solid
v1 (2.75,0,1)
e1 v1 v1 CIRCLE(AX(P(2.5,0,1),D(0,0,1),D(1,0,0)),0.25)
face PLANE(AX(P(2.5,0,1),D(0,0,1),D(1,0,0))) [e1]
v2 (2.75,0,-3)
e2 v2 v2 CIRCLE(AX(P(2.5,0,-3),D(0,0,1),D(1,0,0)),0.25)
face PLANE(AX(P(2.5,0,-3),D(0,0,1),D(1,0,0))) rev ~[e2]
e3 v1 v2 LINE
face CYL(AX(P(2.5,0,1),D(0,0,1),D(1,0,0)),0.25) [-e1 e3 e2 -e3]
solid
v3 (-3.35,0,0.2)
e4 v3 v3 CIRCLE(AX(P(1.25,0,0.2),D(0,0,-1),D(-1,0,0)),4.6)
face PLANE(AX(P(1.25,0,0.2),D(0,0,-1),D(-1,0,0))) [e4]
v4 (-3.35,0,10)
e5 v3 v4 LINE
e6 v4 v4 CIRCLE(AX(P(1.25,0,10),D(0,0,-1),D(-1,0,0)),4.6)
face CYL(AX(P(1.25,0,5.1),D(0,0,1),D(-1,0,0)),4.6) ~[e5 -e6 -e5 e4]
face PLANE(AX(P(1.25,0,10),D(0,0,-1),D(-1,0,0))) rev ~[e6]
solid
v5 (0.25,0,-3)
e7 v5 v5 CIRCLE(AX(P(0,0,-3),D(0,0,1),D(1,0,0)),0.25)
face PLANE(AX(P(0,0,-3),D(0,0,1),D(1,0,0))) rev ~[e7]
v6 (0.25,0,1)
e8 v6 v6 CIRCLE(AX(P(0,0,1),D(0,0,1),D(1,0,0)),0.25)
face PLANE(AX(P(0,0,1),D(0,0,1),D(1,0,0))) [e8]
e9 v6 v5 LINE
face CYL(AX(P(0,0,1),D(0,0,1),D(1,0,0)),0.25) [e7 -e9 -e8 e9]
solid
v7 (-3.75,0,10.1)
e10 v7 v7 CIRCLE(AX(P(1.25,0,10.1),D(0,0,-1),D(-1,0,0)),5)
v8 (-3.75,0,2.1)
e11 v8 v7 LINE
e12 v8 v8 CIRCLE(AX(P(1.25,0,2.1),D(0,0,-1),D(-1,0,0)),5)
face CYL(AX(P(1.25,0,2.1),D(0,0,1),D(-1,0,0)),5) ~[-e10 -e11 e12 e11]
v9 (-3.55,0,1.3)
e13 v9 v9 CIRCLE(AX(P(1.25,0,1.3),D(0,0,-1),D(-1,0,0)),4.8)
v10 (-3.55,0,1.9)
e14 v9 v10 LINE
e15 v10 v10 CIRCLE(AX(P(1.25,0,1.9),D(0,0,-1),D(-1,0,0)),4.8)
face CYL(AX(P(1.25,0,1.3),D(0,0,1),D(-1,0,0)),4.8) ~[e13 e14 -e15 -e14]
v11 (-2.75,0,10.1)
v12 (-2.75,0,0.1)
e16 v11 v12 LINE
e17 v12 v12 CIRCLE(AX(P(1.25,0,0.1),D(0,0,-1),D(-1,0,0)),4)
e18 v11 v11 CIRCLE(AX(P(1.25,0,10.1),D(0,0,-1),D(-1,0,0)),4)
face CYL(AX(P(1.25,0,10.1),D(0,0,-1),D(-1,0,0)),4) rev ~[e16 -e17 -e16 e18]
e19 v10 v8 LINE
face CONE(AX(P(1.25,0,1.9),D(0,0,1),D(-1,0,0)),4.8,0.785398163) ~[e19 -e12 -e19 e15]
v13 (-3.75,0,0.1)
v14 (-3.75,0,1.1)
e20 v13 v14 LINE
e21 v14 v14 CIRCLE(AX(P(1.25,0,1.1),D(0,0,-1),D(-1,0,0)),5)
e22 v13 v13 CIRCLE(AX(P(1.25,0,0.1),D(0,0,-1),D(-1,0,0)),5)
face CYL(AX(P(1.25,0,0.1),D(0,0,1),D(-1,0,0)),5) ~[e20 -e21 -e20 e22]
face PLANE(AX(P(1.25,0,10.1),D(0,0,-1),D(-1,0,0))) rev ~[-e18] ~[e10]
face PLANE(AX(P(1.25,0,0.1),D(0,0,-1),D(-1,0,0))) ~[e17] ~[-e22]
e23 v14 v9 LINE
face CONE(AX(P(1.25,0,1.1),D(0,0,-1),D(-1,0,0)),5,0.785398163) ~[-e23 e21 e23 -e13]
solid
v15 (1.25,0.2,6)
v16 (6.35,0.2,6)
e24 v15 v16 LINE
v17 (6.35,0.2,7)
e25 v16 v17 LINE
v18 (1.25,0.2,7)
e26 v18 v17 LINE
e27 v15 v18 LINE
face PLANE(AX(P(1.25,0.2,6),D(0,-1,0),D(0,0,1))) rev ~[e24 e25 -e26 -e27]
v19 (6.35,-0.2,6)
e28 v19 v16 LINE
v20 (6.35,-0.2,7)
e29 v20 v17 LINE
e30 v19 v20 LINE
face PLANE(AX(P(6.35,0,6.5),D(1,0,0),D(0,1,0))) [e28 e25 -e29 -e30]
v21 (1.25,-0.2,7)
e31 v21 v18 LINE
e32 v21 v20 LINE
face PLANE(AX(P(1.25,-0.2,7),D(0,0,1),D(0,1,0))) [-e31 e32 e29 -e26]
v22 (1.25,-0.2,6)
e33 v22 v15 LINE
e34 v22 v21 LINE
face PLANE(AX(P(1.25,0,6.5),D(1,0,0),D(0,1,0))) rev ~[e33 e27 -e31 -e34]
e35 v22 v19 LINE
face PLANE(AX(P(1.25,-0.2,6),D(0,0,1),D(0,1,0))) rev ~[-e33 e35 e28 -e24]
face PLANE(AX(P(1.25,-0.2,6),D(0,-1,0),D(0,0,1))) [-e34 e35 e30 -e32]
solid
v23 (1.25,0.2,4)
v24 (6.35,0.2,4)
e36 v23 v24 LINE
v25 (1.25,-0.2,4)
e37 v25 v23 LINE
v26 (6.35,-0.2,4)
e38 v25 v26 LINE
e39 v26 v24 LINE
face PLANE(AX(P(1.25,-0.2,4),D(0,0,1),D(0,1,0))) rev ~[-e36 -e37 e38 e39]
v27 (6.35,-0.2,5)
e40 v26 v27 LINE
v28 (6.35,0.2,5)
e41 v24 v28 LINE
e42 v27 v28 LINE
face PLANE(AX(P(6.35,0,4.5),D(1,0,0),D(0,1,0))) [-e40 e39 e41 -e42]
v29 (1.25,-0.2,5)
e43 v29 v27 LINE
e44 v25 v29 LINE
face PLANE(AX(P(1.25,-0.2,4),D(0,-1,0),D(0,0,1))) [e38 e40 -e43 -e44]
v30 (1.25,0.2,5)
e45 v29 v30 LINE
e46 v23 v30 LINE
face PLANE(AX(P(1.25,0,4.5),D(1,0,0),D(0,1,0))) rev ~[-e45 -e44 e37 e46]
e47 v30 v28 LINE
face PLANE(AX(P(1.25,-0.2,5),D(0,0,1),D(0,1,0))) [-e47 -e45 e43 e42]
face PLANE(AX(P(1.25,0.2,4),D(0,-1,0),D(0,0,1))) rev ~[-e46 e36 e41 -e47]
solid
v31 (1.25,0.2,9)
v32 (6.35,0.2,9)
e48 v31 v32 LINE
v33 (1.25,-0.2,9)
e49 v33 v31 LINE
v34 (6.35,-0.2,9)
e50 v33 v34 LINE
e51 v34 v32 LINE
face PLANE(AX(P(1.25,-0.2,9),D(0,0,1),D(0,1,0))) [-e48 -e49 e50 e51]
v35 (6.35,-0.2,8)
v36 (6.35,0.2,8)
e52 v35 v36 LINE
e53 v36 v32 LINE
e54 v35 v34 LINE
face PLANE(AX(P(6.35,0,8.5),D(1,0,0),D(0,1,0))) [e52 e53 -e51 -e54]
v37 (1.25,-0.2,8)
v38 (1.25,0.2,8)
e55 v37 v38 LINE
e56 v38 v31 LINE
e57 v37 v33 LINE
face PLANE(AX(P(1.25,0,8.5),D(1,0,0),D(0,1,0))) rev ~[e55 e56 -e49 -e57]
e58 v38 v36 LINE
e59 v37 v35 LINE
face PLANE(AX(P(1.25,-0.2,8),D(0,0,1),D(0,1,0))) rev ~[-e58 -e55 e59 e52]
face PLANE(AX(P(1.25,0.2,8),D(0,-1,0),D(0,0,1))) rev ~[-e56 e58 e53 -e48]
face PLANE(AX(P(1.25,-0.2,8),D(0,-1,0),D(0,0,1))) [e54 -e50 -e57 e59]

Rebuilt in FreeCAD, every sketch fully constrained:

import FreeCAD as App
import Part
import Sketcher


def add_polygon(sketch, points):
    """Adds a closed chain of lines whose ends are joined by coincident constraints."""
    first, n = sketch.GeometryCount, len(points)
    for a, b in zip(points, points[1:] + points[:1]):
        sketch.addGeometry(Part.LineSegment(App.Vector(*a, 0), App.Vector(*b, 0)), False)
    for i in range(n):
        sketch.addConstraint(Sketcher.Constraint("Coincident", first + i, 2, first + (i + 1) % n, 1))

doc = App.newDocument("Part")
params = doc.addObject("Spreadsheet::Sheet", "Params")
for row, (alias, value) in enumerate([
    ("sketch1_width", "1 mm"),
    ("sketch1_height", "10 mm"),
    ("sketch1_height2", "8 mm"),
    ("sketch1_height3", "0.6 mm"),
    ("revolution_angle", "360 deg"),
    ("sketch2_width", "4.6 mm"),
    ("sketch2_height", "9.8 mm"),
    ("revolution2_angle", "360 deg"),
    ("sketch3_diameter", "0.5 mm"),
    ("pad1_length", "4 mm"),
    ("sketch4_height", "1 mm"),
    ("sketch4_width", "0.4 mm"),
    ("pad2_length", "5.1 mm"),
], start=1):
    params.set(f"A{row}", alias)
    params.set(f"B{row}", "=" + value)
    params.setAlias(f"B{row}", alias)

body = doc.addObject("PartDesign::Body", "Body")

# Sketch on XZ plane
sketch1 = doc.addObject("Sketcher::SketchObject", "Sketch")
body.addObject(sketch1)
sketch1.AttachmentSupport = (doc.XZ_Plane, [""])
sketch1.MapMode = "FlatFace"
add_polygon(sketch1, [(-3.75, 1.1), (-3.75, 0.1), (-2.75, 0.1), (-2.75, 10.1), (-3.75, 10.1), (-3.75, 2.1), (-3.55, 1.9), (-3.55, 1.3)])  # lines 0-7
sketch1.addGeometry(Part.LineSegment(App.Vector(1.25, 10.1, 0), App.Vector(1.25, 0.1, 0)), True)  # axis
sketch1.addConstraint([
    Sketcher.Constraint("Vertical", 0),
    Sketcher.Constraint("Horizontal", 1),
    Sketcher.Constraint("Vertical", 2),
    Sketcher.Constraint("Horizontal", 3),
    Sketcher.Constraint("Vertical", 4),
    Sketcher.Constraint("Vertical", 6),
    Sketcher.Constraint("Vertical", 8),
    Sketcher.Constraint("Perpendicular", 5, 7),
    Sketcher.Constraint("Horizontal", 3, 2, 8, 1),
    Sketcher.Constraint("Horizontal", 1, 2, 8, 2),
    Sketcher.Constraint("Vertical", 0, 2, 3, 2),
    Sketcher.Constraint("Equal", 3, 0),
    Sketcher.Constraint("Equal", 5, 7),
    Sketcher.Constraint("DistanceX", 1, 1, 1, 2, 1.0),
    Sketcher.Constraint("DistanceY", 2, 1, 2, 2, 10.0),
    Sketcher.Constraint("DistanceY", 4, 2, 4, 1, 8.0),
    Sketcher.Constraint("DistanceY", 6, 2, 6, 1, 0.6),
    Sketcher.Constraint("DistanceX", 2, 2, 8, 1, 4.0),
    Sketcher.Constraint("DistanceY", -1, 1, 0, 2, 0.1),
    Sketcher.Constraint("DistanceX", 0, 2, -1, 1, 3.75),
])
sketch1.setExpression("Constraints[21]", "Params.sketch1_width")
sketch1.setExpression("Constraints[22]", "Params.sketch1_height")
sketch1.setExpression("Constraints[23]", "Params.sketch1_height2")
sketch1.setExpression("Constraints[24]", "Params.sketch1_height3")
revolution = doc.addObject("PartDesign::Revolution", "Revolution")
body.addObject(revolution)
revolution.Profile = sketch1
revolution.ReferenceAxis = (sketch1, ["Axis0"])
revolution.setExpression("Angle", "Params.revolution_angle")
body2 = doc.addObject("PartDesign::Body", "Body001")

# Sketch on XZ plane
sketch2 = doc.addObject("Sketcher::SketchObject", "Sketch001")
body2.addObject(sketch2)
sketch2.AttachmentSupport = (doc.getObject("XZ_Plane001"), [""])
sketch2.MapMode = "FlatFace"
add_polygon(sketch2, [(-3.4, 10), (-3.4, 0.2), (1.2, 0.2), (1.2, 10)])  # lines 0-3
sketch2.addGeometry(Part.LineSegment(App.Vector(1.2, 10, 0), App.Vector(1.2, 0.2, 0)), True)  # axis
sketch2.addConstraint([
    Sketcher.Constraint("Vertical", 0),
    Sketcher.Constraint("Horizontal", 1),
    Sketcher.Constraint("Vertical", 2),
    Sketcher.Constraint("Horizontal", 3),
    Sketcher.Constraint("Vertical", 4),
    Sketcher.Constraint("Coincident", 4, 1, 2, 2),
    Sketcher.Constraint("Horizontal", 0, 2, 4, 2),
    Sketcher.Constraint("DistanceX", 1, 1, 1, 2, 4.6),
    Sketcher.Constraint("DistanceY", 0, 2, 0, 1, 9.8),
    Sketcher.Constraint("DistanceY", -1, 1, 2, 2, 10.0),
    Sketcher.Constraint("DistanceX", 0, 2, -1, 1, 3.35),
])
sketch2.setExpression("Constraints[11]", "Params.sketch2_width")
sketch2.setExpression("Constraints[12]", "Params.sketch2_height")
revolution2 = doc.addObject("PartDesign::Revolution", "Revolution001")
body2.addObject(revolution2)
revolution2.Profile = sketch2
revolution2.ReferenceAxis = (sketch2, ["Axis0"])
revolution2.setExpression("Angle", "Params.revolution2_angle")
body3 = doc.addObject("PartDesign::Body", "Body002")
body3.AllowCompound = True

# Sketch on XY plane
sketch3 = doc.addObject("Sketcher::SketchObject", "Sketch002")
body3.addObject(sketch3)
sketch3.AttachmentSupport = (doc.getObject("XY_Plane002"), [""])
sketch3.MapMode = "FlatFace"
sketch3.AttachmentOffset = App.Placement(App.Vector(0, 0, 1), App.Rotation())
sketch3.addGeometry([
    Part.Circle(App.Vector(0, 0, 0), App.Vector(0, 0, 1), 0.25),
    Part.Circle(App.Vector(2.5, 0, 0), App.Vector(0, 0, 1), 0.25),
], False)
sketch3.addConstraint([
    Sketcher.Constraint("Coincident", 0, 3, -1, 1),
    Sketcher.Constraint("Equal", 0, 1),
    Sketcher.Constraint("PointOnObject", 1, 3, -1),
    Sketcher.Constraint("Diameter", 0, 0.5),
    Sketcher.Constraint("DistanceX", -1, 1, 1, 3, 2.5),
])
sketch3.setExpression("Constraints[3]", "Params.sketch3_diameter")
pad1 = doc.addObject("PartDesign::Pad", "Pad")
body3.addObject(pad1)
pad1.Profile = sketch3
pad1.setExpression("Length", "Params.pad1_length")
pad1.Reversed = True
body4 = doc.addObject("PartDesign::Body", "Body003")
body4.AllowCompound = True

# Sketch on YZ plane
sketch4 = doc.addObject("Sketcher::SketchObject", "Sketch003")
body4.addObject(sketch4)
sketch4.AttachmentSupport = (doc.getObject("YZ_Plane003"), [""])
sketch4.MapMode = "FlatFace"
sketch4.AttachmentOffset = App.Placement(App.Vector(0, 0, 1.25), App.Rotation())
add_polygon(sketch4, [(-0.2, 5), (-0.2, 4), (0.2, 4), (0.2, 5)])  # lines 0-3
add_polygon(sketch4, [(-0.2, 7), (-0.2, 6), (0.2, 6), (0.2, 7)])  # lines 4-7
add_polygon(sketch4, [(-0.2, 9), (-0.2, 8), (0.2, 8), (0.2, 9)])  # lines 8-11
sketch4.addConstraint([
    Sketcher.Constraint("Vertical", 0),
    Sketcher.Constraint("Horizontal", 1),
    Sketcher.Constraint("Vertical", 2),
    Sketcher.Constraint("Horizontal", 3),
    Sketcher.Constraint("Vertical", 4),
    Sketcher.Constraint("Horizontal", 5),
    Sketcher.Constraint("Vertical", 6),
    Sketcher.Constraint("Horizontal", 7),
    Sketcher.Constraint("Vertical", 8),
    Sketcher.Constraint("Horizontal", 9),
    Sketcher.Constraint("Vertical", 10),
    Sketcher.Constraint("Horizontal", 11),
    Sketcher.Constraint("Vertical", 3, 2, 4, 2),
    Sketcher.Constraint("Vertical", 2, 2, 5, 2),
    Sketcher.Constraint("Vertical", 7, 2, 8, 2),
    Sketcher.Constraint("Vertical", 6, 2, 9, 2),
    Sketcher.Constraint("Equal", 2, 4),
    Sketcher.Constraint("Equal", 6, 8),
    Sketcher.Constraint("DistanceY", 0, 2, 0, 1, 1.0),
    Sketcher.Constraint("DistanceX", 1, 1, 1, 2, 0.4),
    Sketcher.Constraint("DistanceY", -1, 1, 0, 2, 4.0),
    Sketcher.Constraint("DistanceY", -1, 1, 4, 2, 6.0),
    Sketcher.Constraint("DistanceY", -1, 1, 8, 2, 8.0),
    Sketcher.Constraint("DistanceX", 0, 2, -1, 1, 0.2),
])
sketch4.setExpression("Constraints[30]", "Params.sketch4_height")
sketch4.setExpression("Constraints[31]", "Params.sketch4_width")
pad2 = doc.addObject("PartDesign::Pad", "Pad001")
body4.addObject(pad2)
pad2.Profile = sketch4
pad2.setExpression("Length", "Params.pad2_length")

doc.recompute()
